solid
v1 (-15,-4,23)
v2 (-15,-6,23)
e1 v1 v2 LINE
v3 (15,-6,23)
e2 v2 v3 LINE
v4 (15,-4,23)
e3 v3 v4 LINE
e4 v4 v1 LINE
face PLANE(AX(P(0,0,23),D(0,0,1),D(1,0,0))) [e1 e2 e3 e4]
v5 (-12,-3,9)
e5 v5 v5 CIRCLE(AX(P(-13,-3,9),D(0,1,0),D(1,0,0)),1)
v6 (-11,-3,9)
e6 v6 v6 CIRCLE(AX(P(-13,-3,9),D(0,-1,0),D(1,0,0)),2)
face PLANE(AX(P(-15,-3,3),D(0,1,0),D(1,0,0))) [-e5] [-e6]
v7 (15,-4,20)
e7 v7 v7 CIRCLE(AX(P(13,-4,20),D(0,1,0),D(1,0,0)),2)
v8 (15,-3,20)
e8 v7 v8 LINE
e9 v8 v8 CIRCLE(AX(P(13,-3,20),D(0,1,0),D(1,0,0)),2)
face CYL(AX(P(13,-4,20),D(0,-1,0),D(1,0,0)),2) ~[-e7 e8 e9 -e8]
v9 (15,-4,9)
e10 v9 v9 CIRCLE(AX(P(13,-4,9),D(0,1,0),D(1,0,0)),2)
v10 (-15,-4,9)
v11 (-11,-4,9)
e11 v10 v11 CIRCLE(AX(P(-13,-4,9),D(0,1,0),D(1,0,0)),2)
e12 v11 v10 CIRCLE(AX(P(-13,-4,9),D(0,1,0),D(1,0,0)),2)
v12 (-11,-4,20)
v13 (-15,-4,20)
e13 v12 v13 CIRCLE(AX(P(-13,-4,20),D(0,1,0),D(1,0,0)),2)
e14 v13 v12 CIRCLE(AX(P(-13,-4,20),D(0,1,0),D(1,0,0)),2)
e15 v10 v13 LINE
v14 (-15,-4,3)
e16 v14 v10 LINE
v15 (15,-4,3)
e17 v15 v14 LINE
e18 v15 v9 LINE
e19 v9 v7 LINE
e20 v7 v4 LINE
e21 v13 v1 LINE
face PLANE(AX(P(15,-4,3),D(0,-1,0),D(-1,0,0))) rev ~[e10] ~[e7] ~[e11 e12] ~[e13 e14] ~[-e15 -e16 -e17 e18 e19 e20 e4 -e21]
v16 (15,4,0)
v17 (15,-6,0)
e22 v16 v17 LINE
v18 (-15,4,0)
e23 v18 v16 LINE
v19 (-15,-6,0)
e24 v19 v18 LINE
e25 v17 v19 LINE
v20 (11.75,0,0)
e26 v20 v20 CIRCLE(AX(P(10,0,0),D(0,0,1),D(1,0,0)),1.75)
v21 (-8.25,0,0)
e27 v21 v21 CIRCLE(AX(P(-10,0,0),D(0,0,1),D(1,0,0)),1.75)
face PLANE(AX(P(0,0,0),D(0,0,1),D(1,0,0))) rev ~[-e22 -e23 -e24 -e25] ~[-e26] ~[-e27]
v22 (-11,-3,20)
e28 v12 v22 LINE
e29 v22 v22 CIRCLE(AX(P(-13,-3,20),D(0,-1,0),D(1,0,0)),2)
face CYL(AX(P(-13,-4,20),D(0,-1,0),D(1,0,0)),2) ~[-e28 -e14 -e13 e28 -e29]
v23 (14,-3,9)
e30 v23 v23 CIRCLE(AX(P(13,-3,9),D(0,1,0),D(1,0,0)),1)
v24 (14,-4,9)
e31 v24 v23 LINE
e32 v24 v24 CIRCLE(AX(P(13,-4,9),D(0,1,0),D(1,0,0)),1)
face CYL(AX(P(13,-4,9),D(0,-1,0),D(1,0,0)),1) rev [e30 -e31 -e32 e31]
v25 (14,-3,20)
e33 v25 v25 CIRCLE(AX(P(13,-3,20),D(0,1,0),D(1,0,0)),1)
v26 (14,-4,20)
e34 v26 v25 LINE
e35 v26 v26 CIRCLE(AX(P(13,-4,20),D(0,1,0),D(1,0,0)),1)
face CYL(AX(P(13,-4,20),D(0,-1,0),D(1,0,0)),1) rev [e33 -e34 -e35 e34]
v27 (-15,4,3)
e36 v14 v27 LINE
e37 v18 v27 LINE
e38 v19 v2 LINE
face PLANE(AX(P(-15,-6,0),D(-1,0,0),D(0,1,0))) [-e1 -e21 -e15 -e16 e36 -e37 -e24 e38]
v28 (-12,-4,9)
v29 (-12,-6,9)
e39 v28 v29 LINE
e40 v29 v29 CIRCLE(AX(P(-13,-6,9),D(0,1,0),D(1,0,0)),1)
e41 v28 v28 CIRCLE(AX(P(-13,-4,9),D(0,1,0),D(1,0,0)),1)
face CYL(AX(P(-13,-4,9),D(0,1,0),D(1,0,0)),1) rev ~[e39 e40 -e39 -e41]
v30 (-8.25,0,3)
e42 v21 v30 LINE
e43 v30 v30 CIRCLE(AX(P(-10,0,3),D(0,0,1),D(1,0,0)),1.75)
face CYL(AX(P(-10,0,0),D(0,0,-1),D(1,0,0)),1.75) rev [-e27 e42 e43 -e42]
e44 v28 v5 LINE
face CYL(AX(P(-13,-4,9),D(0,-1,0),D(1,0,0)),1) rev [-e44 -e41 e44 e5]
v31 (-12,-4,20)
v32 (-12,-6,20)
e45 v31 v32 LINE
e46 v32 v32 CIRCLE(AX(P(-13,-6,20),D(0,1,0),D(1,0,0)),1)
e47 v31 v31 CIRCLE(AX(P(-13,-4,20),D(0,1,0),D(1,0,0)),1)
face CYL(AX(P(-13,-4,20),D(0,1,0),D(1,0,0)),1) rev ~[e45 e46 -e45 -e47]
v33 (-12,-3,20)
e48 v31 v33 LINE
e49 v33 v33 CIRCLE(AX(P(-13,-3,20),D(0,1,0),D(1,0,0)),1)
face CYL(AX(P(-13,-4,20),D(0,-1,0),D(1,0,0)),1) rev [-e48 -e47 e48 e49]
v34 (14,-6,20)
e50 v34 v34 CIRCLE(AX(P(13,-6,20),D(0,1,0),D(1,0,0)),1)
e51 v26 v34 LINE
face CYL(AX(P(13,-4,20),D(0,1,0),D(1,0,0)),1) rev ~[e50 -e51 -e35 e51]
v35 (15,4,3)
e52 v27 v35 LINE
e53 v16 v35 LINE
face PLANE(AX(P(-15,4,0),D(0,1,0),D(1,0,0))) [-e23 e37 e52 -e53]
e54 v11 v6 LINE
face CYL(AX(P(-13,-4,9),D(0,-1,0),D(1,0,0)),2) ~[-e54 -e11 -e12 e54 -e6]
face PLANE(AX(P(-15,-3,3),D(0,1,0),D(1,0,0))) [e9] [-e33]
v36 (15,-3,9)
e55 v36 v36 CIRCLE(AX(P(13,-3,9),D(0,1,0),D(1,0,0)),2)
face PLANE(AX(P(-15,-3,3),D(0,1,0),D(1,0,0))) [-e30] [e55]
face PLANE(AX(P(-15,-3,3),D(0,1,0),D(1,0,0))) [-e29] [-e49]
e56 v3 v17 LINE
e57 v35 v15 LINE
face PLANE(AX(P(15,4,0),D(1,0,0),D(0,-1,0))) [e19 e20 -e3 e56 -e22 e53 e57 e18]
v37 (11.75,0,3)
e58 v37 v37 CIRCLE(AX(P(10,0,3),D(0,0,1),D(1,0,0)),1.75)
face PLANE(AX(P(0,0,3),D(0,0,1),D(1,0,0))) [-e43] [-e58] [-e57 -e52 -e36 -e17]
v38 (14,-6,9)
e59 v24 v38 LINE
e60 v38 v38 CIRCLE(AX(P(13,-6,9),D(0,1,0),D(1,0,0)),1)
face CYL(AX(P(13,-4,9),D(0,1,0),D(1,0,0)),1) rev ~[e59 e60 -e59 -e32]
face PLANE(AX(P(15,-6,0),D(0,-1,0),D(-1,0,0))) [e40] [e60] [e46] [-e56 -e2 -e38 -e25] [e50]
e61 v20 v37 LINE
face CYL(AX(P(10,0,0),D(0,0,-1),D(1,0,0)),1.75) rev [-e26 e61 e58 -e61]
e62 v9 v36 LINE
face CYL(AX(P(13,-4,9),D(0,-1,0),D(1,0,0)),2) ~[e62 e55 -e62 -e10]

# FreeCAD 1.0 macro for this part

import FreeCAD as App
import Part
import Sketcher

V = App.Vector

doc = App.newDocument("Part")
body = doc.addObject("PartDesign::Body", "Body")

# Sketch on XY plane
sketch1 = body.newObject("Sketcher::SketchObject", "Sketch")
sketch1.AttachmentSupport = (doc.getObject("XY_Plane"), [""])
sketch1.MapMode = "FlatFace"
sketch1.addGeometry([
    Part.LineSegment(V(15, 4, 0), V(-15, 4, 0)),  # 0
    Part.LineSegment(V(-15, 4, 0), V(-15, -6, 0)),  # 1
    Part.LineSegment(V(-15, -6, 0), V(15, -6, 0)),  # 2
    Part.LineSegment(V(15, -6, 0), V(15, 4, 0)),  # 3
    Part.Circle(V(-10, 0, 0), V(0, 0, 1), 1.8),  # 4
    Part.Circle(V(10, 0, 0), V(0, 0, 1), 1.8),  # 5
], False)
sketch1.addConstraint([
    Sketcher.Constraint("Coincident", 0, 2, 1, 1),
    Sketcher.Constraint("Coincident", 1, 2, 2, 1),
    Sketcher.Constraint("Coincident", 2, 2, 3, 1),
    Sketcher.Constraint("Coincident", 3, 2, 0, 1),
    Sketcher.Constraint("Horizontal", 0),
    Sketcher.Constraint("Vertical", 1),
    Sketcher.Constraint("Horizontal", 2),
    Sketcher.Constraint("Vertical", 3),
    Sketcher.Constraint("Equal", 4, 5),
    Sketcher.Constraint("Symmetric", 4, 3, 5, 3, -1, 1),
    Sketcher.Constraint("PointOnObject", 4, 3, -1),
    Sketcher.Constraint("Diameter", 4, 3.5),
    Sketcher.Constraint("DistanceY", 1, 2, 1, 1, 10.0),
    Sketcher.Constraint("DistanceX", 4, 3, -1, 1, 10.0),
    Sketcher.Constraint("DistanceY", -1, 1, 0, 2, 4.0),
    Sketcher.Constraint("DistanceX", 0, 2, 4, 3, 5.0),
    Sketcher.Constraint("DistanceX", 5, 3, 2, 2, 5.0),
])
pad1 = body.newObject("PartDesign::Pad", "Pad")
pad1.Profile = sketch1
pad1.Length = 3

# Sketch on XY plane
sketch2 = body.newObject("Sketcher::SketchObject", "Sketch001")
sketch2.AttachmentSupport = (doc.getObject("XY_Plane"), [""])
sketch2.MapMode = "FlatFace"
sketch2.AttachmentOffset = App.Placement(V(0, 0, 3), App.Rotation())
sketch2.addGeometry([
    Part.LineSegment(V(-15, -4, 0), V(-15, -6, 0)),
    Part.LineSegment(V(-15, -6, 0), V(15, -6, 0)),
    Part.LineSegment(V(15, -6, 0), V(15, -4, 0)),
    Part.LineSegment(V(15, -4, 0), V(-15, -4, 0)),
], False)
sketch2.addConstraint([
    Sketcher.Constraint("Coincident", 0, 2, 1, 1),
    Sketcher.Constraint("Coincident", 1, 2, 2, 1),
    Sketcher.Constraint("Coincident", 2, 2, 3, 1),
    Sketcher.Constraint("Coincident", 3, 2, 0, 1),
    Sketcher.Constraint("Vertical", 0),
    Sketcher.Constraint("Horizontal", 1),
    Sketcher.Constraint("Vertical", 2),
    Sketcher.Constraint("Horizontal", 3),
    Sketcher.Constraint("DistanceY", 0, 2, 0, 1, 2.0),
    Sketcher.Constraint("DistanceX", 1, 1, 1, 2, 30.0),
    Sketcher.Constraint("DistanceX", 0, 2, -1, 1, 15.0),
    Sketcher.Constraint("DistanceY", 0, 2, -1, 1, 6.0),
])
pad2 = body.newObject("PartDesign::Pad", "Pad001")
pad2.Profile = sketch2
pad2.Length = 20

# Sketch on XZ plane
sketch3 = body.newObject("Sketcher::SketchObject", "Sketch002")
sketch3.AttachmentSupport = (doc.getObject("XZ_Plane"), [""])
sketch3.MapMode = "FlatFace"
sketch3.AttachmentOffset = App.Placement(V(0, 0, 4), App.Rotation())
sketch3.addGeometry([
    Part.Circle(V(-13, 9, 0), V(0, 0, 1), 2),  # 0
    Part.Circle(V(-13, 9, 0), V(0, 0, 1), 1),  # 1
    Part.Circle(V(-13, 20, 0), V(0, 0, 1), 2),  # 2
    Part.Circle(V(-13, 20, 0), V(0, 0, 1), 1),  # 3
    Part.Circle(V(13, 20, 0), V(0, 0, 1), 2),  # 4
    Part.Circle(V(13, 20, 0), V(0, 0, 1), 1),  # 5
    Part.Circle(V(13, 9, 0), V(0, 0, 1), 2),  # 6
    Part.Circle(V(13, 9, 0), V(0, 0, 1), 1),  # 7
], False)
sketch3.addConstraint([
    Sketcher.Constraint("Coincident", 1, 3, 0, 3),
    Sketcher.Constraint("Coincident", 3, 3, 2, 3),
    Sketcher.Constraint("Coincident", 5, 3, 4, 3),
    Sketcher.Constraint("Coincident", 7, 3, 6, 3),
    Sketcher.Constraint("Equal", 0, 2),
    Sketcher.Constraint("Equal", 1, 3),
    Sketcher.Constraint("Equal", 2, 4),
    Sketcher.Constraint("Equal", 3, 5),
    Sketcher.Constraint("Equal", 4, 6),
    Sketcher.Constraint("Equal", 5, 7),
    Sketcher.Constraint("Symmetric", 2, 3, 4, 3, -2),
    Sketcher.Constraint("Symmetric", 0, 3, 6, 3, -2),
    Sketcher.Constraint("Vertical", 1, 3, 2, 3),
    Sketcher.Constraint("Diameter", 0, 4.0),
    Sketcher.Constraint("Diameter", 1, 2.0),
    Sketcher.Constraint("DistanceY", 0, 3, 2, 3, 11.0),
    Sketcher.Constraint("DistanceX", 2, 3, 4, 3, 26.0),
    Sketcher.Constraint("DistanceY", -1, 1, 0, 3, 9.0),
])
pad3 = body.newObject("PartDesign::Pad", "Pad002")
pad3.Profile = sketch3
pad3.Length = 1
pad3.Reversed = True

# Sketch on XZ plane
sketch4 = body.newObject("Sketcher::SketchObject", "Sketch003")
sketch4.AttachmentSupport = (doc.getObject("XZ_Plane"), [""])
sketch4.MapMode = "FlatFace"
sketch4.AttachmentOffset = App.Placement(V(0, 0, 4), App.Rotation())
sketch4.addGeometry([
    Part.Circle(V(-13, 9, 0), V(0, 0, 1), 1),
    Part.Circle(V(13, 9, 0), V(0, 0, 1), 1),
    Part.Circle(V(13, 20, 0), V(0, 0, 1), 1),
    Part.Circle(V(-13, 20, 0), V(0, 0, 1), 1),
], False)
sketch4.addConstraint([
    Sketcher.Constraint("Equal", 0, 1),
    Sketcher.Constraint("Equal", 1, 2),
    Sketcher.Constraint("Equal", 2, 3),
    Sketcher.Constraint("Symmetric", 0, 3, 1, 3, -2),
    Sketcher.Constraint("Symmetric", 2, 3, 3, 3, -2),
    Sketcher.Constraint("Vertical", 1, 3, 2, 3),
    Sketcher.Constraint("Diameter", 0, 2.0),
    Sketcher.Constraint("DistanceX", 0, 3, -1, 1, 13.0),
    Sketcher.Constraint("DistanceY", -1, 1, 0, 3, 9.0),
    Sketcher.Constraint("DistanceY", -1, 1, 2, 3, 20.0),
])
pocket1 = body.newObject("PartDesign::Pocket", "Pocket")
pocket1.Profile = sketch4
pocket1.Type = "ThroughAll"
pocket1.Reversed = True

doc.recompute()
